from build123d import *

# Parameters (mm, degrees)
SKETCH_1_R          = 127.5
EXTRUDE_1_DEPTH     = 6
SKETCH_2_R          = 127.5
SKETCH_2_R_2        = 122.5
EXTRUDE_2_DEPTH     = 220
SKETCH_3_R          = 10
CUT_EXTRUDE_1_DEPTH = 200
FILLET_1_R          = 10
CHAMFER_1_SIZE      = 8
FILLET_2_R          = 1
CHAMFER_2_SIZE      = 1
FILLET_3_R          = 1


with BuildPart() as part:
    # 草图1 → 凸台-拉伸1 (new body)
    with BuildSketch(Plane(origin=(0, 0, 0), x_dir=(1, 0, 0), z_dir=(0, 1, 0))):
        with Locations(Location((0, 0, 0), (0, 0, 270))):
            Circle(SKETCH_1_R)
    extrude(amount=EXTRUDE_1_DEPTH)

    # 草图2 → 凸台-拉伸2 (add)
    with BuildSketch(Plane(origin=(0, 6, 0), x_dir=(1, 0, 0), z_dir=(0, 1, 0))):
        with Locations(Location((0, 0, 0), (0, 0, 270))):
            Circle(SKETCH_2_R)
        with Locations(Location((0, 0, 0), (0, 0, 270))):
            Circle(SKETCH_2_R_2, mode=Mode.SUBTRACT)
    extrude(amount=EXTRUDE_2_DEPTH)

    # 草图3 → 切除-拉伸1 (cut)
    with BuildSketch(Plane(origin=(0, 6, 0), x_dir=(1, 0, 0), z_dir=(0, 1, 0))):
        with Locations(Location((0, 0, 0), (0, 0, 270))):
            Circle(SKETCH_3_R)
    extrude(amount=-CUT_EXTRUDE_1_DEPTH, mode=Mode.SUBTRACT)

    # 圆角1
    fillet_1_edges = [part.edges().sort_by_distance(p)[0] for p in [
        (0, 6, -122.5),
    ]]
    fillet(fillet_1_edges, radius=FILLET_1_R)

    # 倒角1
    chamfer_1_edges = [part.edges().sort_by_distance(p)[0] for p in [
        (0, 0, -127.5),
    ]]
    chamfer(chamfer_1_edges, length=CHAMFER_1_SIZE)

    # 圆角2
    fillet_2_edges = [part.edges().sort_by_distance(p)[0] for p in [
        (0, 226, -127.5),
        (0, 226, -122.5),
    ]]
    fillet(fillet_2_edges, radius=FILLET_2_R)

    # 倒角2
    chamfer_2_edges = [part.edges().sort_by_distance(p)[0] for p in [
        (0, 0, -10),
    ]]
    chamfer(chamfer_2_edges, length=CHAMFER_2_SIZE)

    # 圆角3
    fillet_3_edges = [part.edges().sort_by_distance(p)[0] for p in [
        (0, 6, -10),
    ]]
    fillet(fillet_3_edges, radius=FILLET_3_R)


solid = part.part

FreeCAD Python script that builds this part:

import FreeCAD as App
import Part
import Sketcher

V = App.Vector


def edges_at(feature, points):
    """Names of the edges that pass closest to the given points."""
    edges = feature.Shape.Edges
    near = lambda p: min(range(len(edges)), key=lambda i: edges[i].distToShape(Part.Vertex(*p))[0])
    return sorted({f"Edge{near(p) + 1}" for p in points})

doc = App.newDocument("Part")
body = doc.addObject("PartDesign::Body", "Body")

# Sketch on XZ plane
sketch1 = doc.addObject("Sketcher::SketchObject", "Sketch")
body.addObject(sketch1)
sketch1.AttachmentSupport = (doc.XZ_Plane, [""])
sketch1.MapMode = "FlatFace"
sketch1.addGeometry(Part.Circle(V(0, 0, 0), V(0, 0, 1), 128), False)
sketch1.addConstraint([
    Sketcher.Constraint("Coincident", 0, 3, -1, 1),
    Sketcher.Constraint("Diameter", 0, 255.0),
])
pad1 = doc.addObject("PartDesign::Pad", "Pad")
body.addObject(pad1)
pad1.Profile = sketch1
pad1.Length = 6
pad1.Reversed = True

# Sketch on XZ plane
sketch2 = doc.addObject("Sketcher::SketchObject", "Sketch001")
body.addObject(sketch2)
sketch2.AttachmentSupport = (doc.XZ_Plane, [""])
sketch2.MapMode = "FlatFace"
sketch2.AttachmentOffset = App.Placement(V(0, 0, -6), App.Rotation())
sketch2.addGeometry([
    Part.Circle(V(0, 0, 0), V(0, 0, 1), 128),
    Part.Circle(V(0, 0, 0), V(0, 0, 1), 122),
], False)
sketch2.addConstraint([
    Sketcher.Constraint("Coincident", 0, 3, -1, 1),
    Sketcher.Constraint("Coincident", 1, 3, -1, 1),
    Sketcher.Constraint("Diameter", 0, 255.0),
    Sketcher.Constraint("Diameter", 1, 245.0),
])
pad2 = doc.addObject("PartDesign::Pad", "Pad001")
body.addObject(pad2)
pad2.Profile = sketch2
pad2.Length = 220
pad2.Reversed = True

# Sketch on XZ plane
sketch3 = doc.addObject("Sketcher::SketchObject", "Sketch002")
body.addObject(sketch3)
sketch3.AttachmentSupport = (doc.XZ_Plane, [""])
sketch3.MapMode = "FlatFace"
sketch3.AttachmentOffset = App.Placement(V(0, 0, -6), App.Rotation())
sketch3.addGeometry(Part.Circle(V(0, 0, 0), V(0, 0, 1), 10), False)
sketch3.addConstraint([
    Sketcher.Constraint("Coincident", 0, 3, -1, 1),
    Sketcher.Constraint("Diameter", 0, 20.0),
])
pocket1 = doc.addObject("PartDesign::Pocket", "Pocket")
body.addObject(pocket1)
pocket1.Profile = sketch3
pocket1.Length = 200
pocket1.Reversed = True
doc.recompute()

fillet = doc.addObject("PartDesign::Fillet", "Fillet")
body.addObject(fillet)
fillet.Base = (pocket1, edges_at(pocket1, [(0, 6, -122.5)]))
fillet.Radius = 10
doc.recompute()

chamfer = doc.addObject("PartDesign::Chamfer", "Chamfer")
body.addObject(chamfer)
chamfer.Base = (fillet, edges_at(fillet, [(0, 0, -127.5)]))
chamfer.Size = 8
doc.recompute()

fillet2 = doc.addObject("PartDesign::Fillet", "Fillet001")
body.addObject(fillet2)
fillet2.Base = (chamfer, edges_at(chamfer, [(0, 226, -127.5), (0, 226, -122.5)]))
fillet2.Radius = 1
doc.recompute()

chamfer2 = doc.addObject("PartDesign::Chamfer", "Chamfer001")
body.addObject(chamfer2)
chamfer2.Base = (fillet2, edges_at(fillet2, [(0, 0, -10)]))
chamfer2.Size = 1
doc.recompute()

fillet3 = doc.addObject("PartDesign::Fillet", "Fillet002")
body.addObject(fillet3)
fillet3.Base = (chamfer2, edges_at(chamfer2, [(0, 6, -10)]))
fillet3.Radius = 1

doc.recompute()
